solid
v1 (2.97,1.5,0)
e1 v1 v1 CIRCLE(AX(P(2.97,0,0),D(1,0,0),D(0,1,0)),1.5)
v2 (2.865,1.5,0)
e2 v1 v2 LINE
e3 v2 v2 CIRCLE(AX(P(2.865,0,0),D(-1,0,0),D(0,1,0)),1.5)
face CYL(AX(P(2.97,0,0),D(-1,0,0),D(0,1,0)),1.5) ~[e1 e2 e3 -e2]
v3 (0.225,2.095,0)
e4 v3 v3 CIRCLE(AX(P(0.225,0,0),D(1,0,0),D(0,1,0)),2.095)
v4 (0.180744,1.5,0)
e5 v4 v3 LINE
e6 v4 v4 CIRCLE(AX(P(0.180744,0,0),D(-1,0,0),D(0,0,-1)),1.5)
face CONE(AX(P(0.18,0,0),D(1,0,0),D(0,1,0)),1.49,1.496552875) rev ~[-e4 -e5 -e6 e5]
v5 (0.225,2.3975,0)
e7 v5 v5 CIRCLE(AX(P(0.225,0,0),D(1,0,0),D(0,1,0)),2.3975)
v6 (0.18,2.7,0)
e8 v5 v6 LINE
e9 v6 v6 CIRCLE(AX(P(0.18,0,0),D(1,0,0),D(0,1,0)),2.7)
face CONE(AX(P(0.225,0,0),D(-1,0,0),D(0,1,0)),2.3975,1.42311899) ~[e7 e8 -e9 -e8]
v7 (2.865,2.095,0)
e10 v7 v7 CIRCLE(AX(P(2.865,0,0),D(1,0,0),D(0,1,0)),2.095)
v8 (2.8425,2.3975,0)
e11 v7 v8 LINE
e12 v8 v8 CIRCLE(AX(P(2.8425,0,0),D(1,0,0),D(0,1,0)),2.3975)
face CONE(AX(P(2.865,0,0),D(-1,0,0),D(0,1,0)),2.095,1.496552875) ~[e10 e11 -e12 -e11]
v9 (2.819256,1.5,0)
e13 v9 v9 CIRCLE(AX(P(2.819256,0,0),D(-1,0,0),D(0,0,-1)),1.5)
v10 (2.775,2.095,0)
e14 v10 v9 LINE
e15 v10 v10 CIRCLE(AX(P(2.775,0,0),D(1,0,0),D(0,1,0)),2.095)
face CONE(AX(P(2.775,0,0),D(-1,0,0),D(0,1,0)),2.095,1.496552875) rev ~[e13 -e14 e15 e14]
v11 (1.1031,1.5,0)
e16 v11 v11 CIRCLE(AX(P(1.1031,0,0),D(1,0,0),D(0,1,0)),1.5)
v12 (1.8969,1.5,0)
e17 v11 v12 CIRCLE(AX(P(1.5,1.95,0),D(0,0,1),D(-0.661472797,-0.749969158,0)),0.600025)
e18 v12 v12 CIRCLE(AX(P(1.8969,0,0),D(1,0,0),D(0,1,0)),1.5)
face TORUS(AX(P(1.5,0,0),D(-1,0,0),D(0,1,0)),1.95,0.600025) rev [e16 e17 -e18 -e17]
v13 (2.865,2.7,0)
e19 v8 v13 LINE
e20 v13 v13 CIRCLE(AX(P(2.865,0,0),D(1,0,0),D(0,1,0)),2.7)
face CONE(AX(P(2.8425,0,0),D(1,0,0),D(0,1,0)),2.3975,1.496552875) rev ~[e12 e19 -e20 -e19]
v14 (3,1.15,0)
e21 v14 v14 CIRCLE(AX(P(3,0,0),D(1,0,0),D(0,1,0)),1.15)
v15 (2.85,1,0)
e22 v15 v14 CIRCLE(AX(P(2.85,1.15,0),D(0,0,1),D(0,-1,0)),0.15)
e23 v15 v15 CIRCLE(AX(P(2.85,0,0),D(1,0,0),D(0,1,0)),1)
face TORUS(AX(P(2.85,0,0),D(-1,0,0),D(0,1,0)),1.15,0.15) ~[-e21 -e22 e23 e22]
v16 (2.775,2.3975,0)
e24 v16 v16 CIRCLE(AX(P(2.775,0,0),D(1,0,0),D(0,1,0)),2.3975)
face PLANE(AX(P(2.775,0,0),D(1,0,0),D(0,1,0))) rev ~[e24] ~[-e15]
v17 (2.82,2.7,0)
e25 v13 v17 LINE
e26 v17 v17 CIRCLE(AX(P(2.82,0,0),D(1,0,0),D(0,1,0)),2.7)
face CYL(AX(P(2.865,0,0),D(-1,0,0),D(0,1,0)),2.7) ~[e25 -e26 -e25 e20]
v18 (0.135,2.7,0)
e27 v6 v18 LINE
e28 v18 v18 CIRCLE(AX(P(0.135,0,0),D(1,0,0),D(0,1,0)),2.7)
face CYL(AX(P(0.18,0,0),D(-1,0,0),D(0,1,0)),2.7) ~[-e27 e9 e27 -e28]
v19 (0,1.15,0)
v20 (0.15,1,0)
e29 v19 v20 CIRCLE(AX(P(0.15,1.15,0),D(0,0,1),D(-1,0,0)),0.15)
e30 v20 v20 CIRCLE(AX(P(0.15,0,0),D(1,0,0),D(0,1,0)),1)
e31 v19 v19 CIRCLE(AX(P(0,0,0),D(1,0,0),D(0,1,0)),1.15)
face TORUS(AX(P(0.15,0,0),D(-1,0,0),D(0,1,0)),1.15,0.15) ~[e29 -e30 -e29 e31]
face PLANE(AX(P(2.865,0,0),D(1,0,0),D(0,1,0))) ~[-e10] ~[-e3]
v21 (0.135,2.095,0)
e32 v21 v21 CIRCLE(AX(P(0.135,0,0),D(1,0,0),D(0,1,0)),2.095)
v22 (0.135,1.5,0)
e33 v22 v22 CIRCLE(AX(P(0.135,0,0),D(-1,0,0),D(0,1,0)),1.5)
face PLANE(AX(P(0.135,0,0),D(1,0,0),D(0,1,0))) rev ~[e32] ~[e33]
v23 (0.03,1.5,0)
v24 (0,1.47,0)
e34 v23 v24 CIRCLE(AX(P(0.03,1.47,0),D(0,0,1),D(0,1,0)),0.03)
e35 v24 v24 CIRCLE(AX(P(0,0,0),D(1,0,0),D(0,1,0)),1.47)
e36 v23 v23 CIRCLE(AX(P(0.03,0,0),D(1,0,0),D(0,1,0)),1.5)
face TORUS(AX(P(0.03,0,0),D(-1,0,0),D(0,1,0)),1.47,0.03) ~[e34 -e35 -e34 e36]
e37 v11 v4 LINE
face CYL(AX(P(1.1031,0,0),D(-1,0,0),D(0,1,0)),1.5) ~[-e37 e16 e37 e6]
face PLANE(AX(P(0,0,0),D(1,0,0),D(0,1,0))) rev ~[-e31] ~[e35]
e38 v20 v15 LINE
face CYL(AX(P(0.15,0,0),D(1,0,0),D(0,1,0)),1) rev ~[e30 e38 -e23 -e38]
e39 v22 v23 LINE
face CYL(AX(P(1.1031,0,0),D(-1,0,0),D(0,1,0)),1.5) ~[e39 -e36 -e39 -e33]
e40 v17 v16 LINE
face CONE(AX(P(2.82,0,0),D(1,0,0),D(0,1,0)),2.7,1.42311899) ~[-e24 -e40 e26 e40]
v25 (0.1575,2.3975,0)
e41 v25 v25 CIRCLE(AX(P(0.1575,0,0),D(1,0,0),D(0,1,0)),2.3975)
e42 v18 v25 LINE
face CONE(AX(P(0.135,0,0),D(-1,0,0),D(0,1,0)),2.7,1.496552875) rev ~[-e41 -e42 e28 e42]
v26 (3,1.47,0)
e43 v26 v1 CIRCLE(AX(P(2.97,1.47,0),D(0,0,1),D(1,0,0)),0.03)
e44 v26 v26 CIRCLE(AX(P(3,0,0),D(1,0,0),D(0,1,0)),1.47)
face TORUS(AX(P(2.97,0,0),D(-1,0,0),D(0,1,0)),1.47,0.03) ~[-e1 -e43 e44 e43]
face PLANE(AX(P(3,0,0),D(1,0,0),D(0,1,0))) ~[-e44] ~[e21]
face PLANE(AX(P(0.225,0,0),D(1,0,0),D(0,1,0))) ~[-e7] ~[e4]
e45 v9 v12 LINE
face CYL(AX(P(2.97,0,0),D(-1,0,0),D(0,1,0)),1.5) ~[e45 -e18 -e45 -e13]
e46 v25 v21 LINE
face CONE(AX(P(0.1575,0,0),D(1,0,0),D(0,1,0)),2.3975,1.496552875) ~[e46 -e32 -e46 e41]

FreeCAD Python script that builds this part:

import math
import FreeCAD as App
import Part
import Sketcher
from FreeCAD import Vector


def add_polygon(sketch, points):
    """Adds a closed chain of lines whose ends are joined by coincident constraints."""
    first, n = sketch.GeometryCount, len(points)
    for a, b in zip(points, points[1:] + points[:1]):
        sketch.addGeometry(Part.LineSegment(App.Vector(*a, 0), App.Vector(*b, 0)), False)
    for i in range(n):
        sketch.addConstraint(Sketcher.Constraint("Coincident", first + i, 2, first + (i + 1) % n, 1))

doc = App.newDocument("Part")
body = doc.addObject("PartDesign::Body", "Body")

# Sketch on XY plane
sketch1 = body.newObject("Sketcher::SketchObject", "Sketch")
sketch1.AttachmentSupport = (doc.getObject("XY_Plane"), [""])
sketch1.MapMode = "FlatFace"
sketch1.addGeometry(Part.ArcOfCircle(Part.Circle(Vector(0.03, 1.47, 0), Vector(0, 0, 1), 0.03), math.radians(90), math.radians(180)), False)
sketch1.addGeometry(Part.LineSegment(Vector(0, 1.47, 0), Vector(0, 1.15, 0)), False)
sketch1.addGeometry(Part.ArcOfCircle(Part.Circle(Vector(0.15, 1.15, 0), Vector(0, 0, 1), 0.15), math.radians(180), math.radians(270)), False)
sketch1.addGeometry(Part.LineSegment(Vector(0.15, 1, 0), Vector(2.85, 1, 0)), False)
sketch1.addGeometry(Part.ArcOfCircle(Part.Circle(Vector(2.85, 1.15, 0), Vector(0, 0, 1), 0.15), math.radians(-90), math.radians(0)), False)
sketch1.addGeometry(Part.LineSegment(Vector(3, 1.15, 0), Vector(3, 1.47, 0)), False)
sketch1.addGeometry(Part.ArcOfCircle(Part.Circle(Vector(2.97, 1.47, 0), Vector(0, 0, 1), 0.03), math.radians(0), math.radians(90)), False)
sketch1.addGeometry(Part.LineSegment(Vector(2.97, 1.5, 0), Vector(1.897, 1.5, 0)), False)
sketch1.addGeometry(Part.ArcOfCircle(Part.Circle(Vector(1.5, 1.95, 0), Vector(0, 0, 1), 0.6), math.radians(-131), math.radians(-49)), False)
sketch1.addGeometry(Part.LineSegment(Vector(1.103, 1.5, 0), Vector(0.03, 1.5, 0)), False)
sketch1.addConstraint(Sketcher.Constraint("Tangent", 0, 2, 1, 1))
sketch1.addConstraint(Sketcher.Constraint("Tangent", 1, 2, 2, 1))
sketch1.addConstraint(Sketcher.Constraint("Tangent", 2, 2, 3, 1))
sketch1.addConstraint(Sketcher.Constraint("Tangent", 3, 2, 4, 1))
sketch1.addConstraint(Sketcher.Constraint("Tangent", 4, 2, 5, 1))
sketch1.addConstraint(Sketcher.Constraint("Tangent", 5, 2, 6, 1))
sketch1.addConstraint(Sketcher.Constraint("Tangent", 6, 2, 7, 1))
sketch1.addConstraint(Sketcher.Constraint("Coincident", 7, 2, 8, 2))
sketch1.addConstraint(Sketcher.Constraint("Coincident", 8, 1, 9, 1))
sketch1.addConstraint(Sketcher.Constraint("Tangent", 9, 2, 0, 1))
sketch1.addConstraint(Sketcher.Constraint("Vertical", 1))
sketch1.addConstraint(Sketcher.Constraint("Horizontal", 3))
sketch1.addConstraint(Sketcher.Constraint("Vertical", 5))
sketch1.addConstraint(Sketcher.Constraint("Horizontal", 7))
sketch1.addConstraint(Sketcher.Constraint("Horizontal", 9))
sketch1.addConstraint(Sketcher.Constraint("Equal", 2, 4))
sketch1.addConstraint(Sketcher.Constraint("Equal", 0, 6))
sketch1.addConstraint(Sketcher.Constraint("PointOnObject", 0, 2, -2))
sketch1.addConstraint(Sketcher.Constraint("Horizontal", 0, 3, 6, 3))
sketch1.addConstraint(Sketcher.Constraint("Equal", 7, 9))
sketch1.addConstraint(Sketcher.Constraint("Radius", 8, 0.6))
sketch1.addConstraint(Sketcher.Constraint("Radius", 0, 0.03))
sketch1.addConstraint(Sketcher.Constraint("Radius", 2, 0.15))
sketch1.addConstraint(Sketcher.Constraint("DistanceX", 3, 1, 3, 2, 2.7))
sketch1.addConstraint(Sketcher.Constraint("DistanceY", -1, 1, 2, 2, 1.0))
sketch1.addConstraint(Sketcher.Constraint("DistanceY", 1, 2, 1, 1, 0.32))
sketch1.addConstraint(Sketcher.Constraint("DistanceY", 2, 3, 8, 3, 0.8))
revolution = body.newObject("PartDesign::Revolution", "Revolution")
revolution.Profile = sketch1
revolution.ReferenceAxis = (sketch1, ["H_Axis"])
revolution.Angle = 360

# Sketch on XY plane
sketch2 = body.newObject("Sketcher::SketchObject", "Sketch001")
sketch2.AttachmentSupport = (doc.getObject("XY_Plane"), [""])
sketch2.MapMode = "FlatFace"
add_polygon(sketch2, [(0.18, 2.7), (0.135, 2.7), (0.158, 2.397), (0.135, 2.095), (0.135, 1.49), (0.18, 1.49), (0.225, 2.095), (0.225, 2.397)])  # lines 0-7
sketch2.addConstraint(Sketcher.Constraint("Horizontal", 0))
sketch2.addConstraint(Sketcher.Constraint("Vertical", 3))
sketch2.addConstraint(Sketcher.Constraint("Horizontal", 4))
sketch2.addConstraint(Sketcher.Constraint("Vertical", 6))
sketch2.addConstraint(Sketcher.Constraint("Parallel", 2, 5))
sketch2.addConstraint(Sketcher.Constraint("Horizontal", 2, 2, 5, 2))
sketch2.addConstraint(Sketcher.Constraint("Horizontal", 1, 2, 6, 2))
sketch2.addConstraint(Sketcher.Constraint("Vertical", 0, 2, 2, 2))
sketch2.addConstraint(Sketcher.Constraint("Vertical", 4, 2, 7, 2))
sketch2.addConstraint(Sketcher.Constraint("Equal", 1, 2))
sketch2.addConstraint(Sketcher.Constraint("DistanceY", -1, 1, 0, 2, 2.7))
sketch2.addConstraint(Sketcher.Constraint("DistanceX", 0, 2, 0, 1, 0.045))
sketch2.addConstraint(Sketcher.Constraint("DistanceY", 3, 2, 3, 1, 0.605))
sketch2.addConstraint(Sketcher.Constraint("DistanceY", -1, 1, 3, 2, 1.49))
sketch2.addConstraint(Sketcher.Constraint("DistanceX", -1, 1, 4, 2, 0.18))
sketch2.addConstraint(Sketcher.Constraint("DistanceX", 2, 2, 5, 2, 0.09))
revolution2 = body.newObject("PartDesign::Revolution", "Revolution001")
revolution2.Profile = sketch2
revolution2.ReferenceAxis = (sketch2, ["H_Axis"])
revolution2.Angle = 360

# Sketch on XY plane
sketch3 = body.newObject("Sketcher::SketchObject", "Sketch002")
sketch3.AttachmentSupport = (doc.getObject("XY_Plane"), [""])
sketch3.MapMode = "FlatFace"
add_polygon(sketch3, [(2.82, 2.7), (2.775, 2.397), (2.775, 2.095), (2.82, 1.49), (2.865, 1.49), (2.865, 2.095), (2.842, 2.397), (2.865, 2.7)])  # lines 0-7
sketch3.addConstraint(Sketcher.Constraint("Vertical", 1))
sketch3.addConstraint(Sketcher.Constraint("Horizontal", 3))
sketch3.addConstraint(Sketcher.Constraint("Vertical", 4))
sketch3.addConstraint(Sketcher.Constraint("Horizontal", 7))
sketch3.addConstraint(Sketcher.Constraint("Parallel", 2, 5))
sketch3.addConstraint(Sketcher.Constraint("Horizontal", 1, 2, 4, 2))
sketch3.addConstraint(Sketcher.Constraint("Horizontal", 0, 2, 5, 2))
sketch3.addConstraint(Sketcher.Constraint("Vertical", 4, 2, 6, 2))
sketch3.addConstraint(Sketcher.Constraint("Vertical", 2, 2, 7, 2))
sketch3.addConstraint(Sketcher.Constraint("Equal", 5, 6))
sketch3.addConstraint(Sketcher.Constraint("DistanceY", -1, 1, 6, 2, 2.7))
sketch3.addConstraint(Sketcher.Constraint("DistanceX", 3, 1, 3, 2, 0.045))
sketch3.addConstraint(Sketcher.Constraint("DistanceY", 4, 1, 4, 2, 0.605))
sketch3.addConstraint(Sketcher.Constraint("DistanceX", -1, 1, 2, 2, 2.82))
sketch3.addConstraint(Sketcher.Constraint("DistanceY", -1, 1, 2, 2, 1.49))
sketch3.addConstraint(Sketcher.Constraint("DistanceX", 1, 2, 3, 2, 0.09))
revolution3 = body.newObject("PartDesign::Revolution", "Revolution002")
revolution3.Profile = sketch3
revolution3.ReferenceAxis = (sketch3, ["H_Axis"])
revolution3.Angle = 360

doc.recompute()
